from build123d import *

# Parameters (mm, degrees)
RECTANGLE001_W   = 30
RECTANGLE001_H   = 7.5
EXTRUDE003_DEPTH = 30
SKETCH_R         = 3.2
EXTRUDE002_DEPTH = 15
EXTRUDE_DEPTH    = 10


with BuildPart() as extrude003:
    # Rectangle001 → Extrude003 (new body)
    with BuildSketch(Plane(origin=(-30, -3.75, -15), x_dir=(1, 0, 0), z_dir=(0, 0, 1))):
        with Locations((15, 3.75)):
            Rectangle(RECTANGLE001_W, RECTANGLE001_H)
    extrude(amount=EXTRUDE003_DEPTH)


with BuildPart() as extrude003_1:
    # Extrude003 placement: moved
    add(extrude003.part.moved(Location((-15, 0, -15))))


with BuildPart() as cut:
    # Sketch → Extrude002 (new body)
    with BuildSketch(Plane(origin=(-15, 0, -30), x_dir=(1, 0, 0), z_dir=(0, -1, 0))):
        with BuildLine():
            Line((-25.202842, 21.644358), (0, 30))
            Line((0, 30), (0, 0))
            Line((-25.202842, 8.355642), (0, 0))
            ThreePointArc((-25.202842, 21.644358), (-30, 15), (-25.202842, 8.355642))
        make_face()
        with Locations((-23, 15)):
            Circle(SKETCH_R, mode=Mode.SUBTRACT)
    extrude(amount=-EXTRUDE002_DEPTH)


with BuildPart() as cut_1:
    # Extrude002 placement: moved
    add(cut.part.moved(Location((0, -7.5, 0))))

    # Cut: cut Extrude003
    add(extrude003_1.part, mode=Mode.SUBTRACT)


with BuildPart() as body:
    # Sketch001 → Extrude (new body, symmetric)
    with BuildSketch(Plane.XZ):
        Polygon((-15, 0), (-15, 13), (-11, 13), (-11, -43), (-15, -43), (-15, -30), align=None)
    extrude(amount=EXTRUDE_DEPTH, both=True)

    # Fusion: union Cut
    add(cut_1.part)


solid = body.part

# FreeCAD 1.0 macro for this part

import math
import FreeCAD as App
import Part
import Sketcher


def add_polygon(sketch, points):
    """Adds a closed chain of lines whose ends are joined by coincident constraints."""
    first, n = sketch.GeometryCount, len(points)
    for a, b in zip(points, points[1:] + points[:1]):
        sketch.addGeometry(Part.LineSegment(App.Vector(*a, 0), App.Vector(*b, 0)), False)
    for i in range(n):
        sketch.addConstraint(Sketcher.Constraint("Coincident", first + i, 2, first + (i + 1) % n, 1))

doc = App.newDocument("Part")
body = doc.addObject("PartDesign::Body", "Body")

# Sketch on XY plane
sketch1 = body.newObject("Sketcher::SketchObject", "Sketch")
sketch1.AttachmentSupport = (doc.getObject("XY_Plane"), [""])
sketch1.MapMode = "FlatFace"
sketch1.AttachmentOffset = App.Placement(App.Vector(0, 0, -15), App.Rotation())
add_polygon(sketch1, [(-30, 3.75), (-30, -3.75), (0, -3.75), (0, 3.75)])  # lines 0-3
sketch1.addConstraint([
    Sketcher.Constraint("Vertical", 0),
    Sketcher.Constraint("Horizontal", 1),
    Sketcher.Constraint("Vertical", 2),
    Sketcher.Constraint("Horizontal", 3),
    Sketcher.Constraint("Symmetric", 1, 2, 2, 2, -1, 1),
    Sketcher.Constraint("DistanceX", 1, 1, 1, 2, 30.0),
    Sketcher.Constraint("DistanceY", 0, 2, 0, 1, 7.5),
])
pad1 = body.newObject("PartDesign::Pad", "Pad")
pad1.Profile = sketch1
pad1.Length = 30
body2 = doc.addObject("PartDesign::Body", "Body001")
doc.recompute()

body.Placement = App.Placement(App.Vector(-15, 0, -15), App.Rotation(App.Vector(0, 0, 1), 0))
boolean = body2.newObject("PartDesign::Boolean", "Boolean")
boolean.Type = "Fuse"
boolean.addObjects([body])
body3 = doc.addObject("PartDesign::Body", "Body002")

# Sketch on XZ plane
sketch2 = body3.newObject("Sketcher::SketchObject", "Sketch001")
sketch2.AttachmentSupport = (doc.getObject("XZ_Plane002"), [""])
sketch2.MapMode = "FlatFace"
sketch2.addGeometry([
    Part.LineSegment(App.Vector(-15, 0, 0), App.Vector(-40.202842, -8.355642, 0)),  # 0
    Part.ArcOfCircle(Part.Circle(App.Vector(-37.999999, -15, 0), App.Vector(0, 0, 1), 7.000001), math.radians(108.342208), math.radians(251.657792)),  # 1
    Part.LineSegment(App.Vector(-40.202842, -21.644358, 0), App.Vector(-15, -30, 0)),  # 2
    Part.LineSegment(App.Vector(-15, -30, 0), App.Vector(-15, 0, 0)),  # 3
    Part.Circle(App.Vector(-38, -15, 0), App.Vector(0, 0, 1), 3.2),  # 4
], False)
sketch2.addConstraint([
    Sketcher.Constraint("Tangent", 0, 2, 1, 1),
    Sketcher.Constraint("Tangent", 1, 2, 2, 1),
    Sketcher.Constraint("Coincident", 2, 2, 3, 1),
    Sketcher.Constraint("Coincident", 3, 2, 0, 1),
    Sketcher.Constraint("Vertical", 3),
    Sketcher.Constraint("Coincident", 4, 3, 1, 3),
    Sketcher.Constraint("PointOnObject", 3, 2, -1),
    Sketcher.Constraint("Vertical", 0, 2, 1, 2),
    Sketcher.Constraint("Radius", 1, 7.000001),
    Sketcher.Constraint("Diameter", 4, 6.4),
    Sketcher.Constraint("DistanceY", 3, 1, 3, 2, 30.0),
    Sketcher.Constraint("DistanceX", 1, 3, -1, 1, 37.999999),
    Sketcher.Constraint("DistanceX", 2, 2, -1, 1, 15.0),
])
pad2 = body3.newObject("PartDesign::Pad", "Pad001")
pad2.Profile = sketch2
pad2.Length = 15
pad2.Reversed = True
body4 = doc.addObject("PartDesign::Body", "Body003")
body4.AllowCompound = True
doc.recompute()

body3.Placement = App.Placement(App.Vector(0, -7.5, 0), App.Rotation(App.Vector(0, 0, 1), 0))
boolean2 = body4.newObject("PartDesign::Boolean", "Boolean001")
boolean2.Type = "Fuse"
boolean2.addObjects([body3])
doc.recompute()

boolean3 = body4.newObject("PartDesign::Boolean", "Boolean002")
boolean3.Type = "Cut"
boolean3.addObjects([body2])
body5 = doc.addObject("PartDesign::Body", "Body004")

# Sketch on XZ plane
sketch3 = body5.newObject("Sketcher::SketchObject", "Sketch002")
sketch3.AttachmentSupport = (doc.getObject("XZ_Plane004"), [""])
sketch3.MapMode = "FlatFace"
add_polygon(sketch3, [(-15, 13), (-15, -43), (-11, -43), (-11, 13)])  # lines 0-3
sketch3.addConstraint([
    Sketcher.Constraint("Vertical", 0),
    Sketcher.Constraint("Horizontal", 1),
    Sketcher.Constraint("Vertical", 2),
    Sketcher.Constraint("Horizontal", 3),
    Sketcher.Constraint("DistanceX", 1, 1, 1, 2, 4.0),
    Sketcher.Constraint("DistanceY", 0, 2, 0, 1, 56.0),
    Sketcher.Constraint("DistanceX", 0, 2, -1, 1, 15.0),
    Sketcher.Constraint("DistanceY", 0, 2, -1, 1, 43.0),
])
pad3 = body5.newObject("PartDesign::Pad", "Pad002")
pad3.Profile = sketch3
pad3.Length = 20
pad3.Midplane = True
doc.recompute()

boolean4 = body5.newObject("PartDesign::Boolean", "Boolean003")
boolean4.Type = "Fuse"
boolean4.addObjects([body4])

doc.recompute()
